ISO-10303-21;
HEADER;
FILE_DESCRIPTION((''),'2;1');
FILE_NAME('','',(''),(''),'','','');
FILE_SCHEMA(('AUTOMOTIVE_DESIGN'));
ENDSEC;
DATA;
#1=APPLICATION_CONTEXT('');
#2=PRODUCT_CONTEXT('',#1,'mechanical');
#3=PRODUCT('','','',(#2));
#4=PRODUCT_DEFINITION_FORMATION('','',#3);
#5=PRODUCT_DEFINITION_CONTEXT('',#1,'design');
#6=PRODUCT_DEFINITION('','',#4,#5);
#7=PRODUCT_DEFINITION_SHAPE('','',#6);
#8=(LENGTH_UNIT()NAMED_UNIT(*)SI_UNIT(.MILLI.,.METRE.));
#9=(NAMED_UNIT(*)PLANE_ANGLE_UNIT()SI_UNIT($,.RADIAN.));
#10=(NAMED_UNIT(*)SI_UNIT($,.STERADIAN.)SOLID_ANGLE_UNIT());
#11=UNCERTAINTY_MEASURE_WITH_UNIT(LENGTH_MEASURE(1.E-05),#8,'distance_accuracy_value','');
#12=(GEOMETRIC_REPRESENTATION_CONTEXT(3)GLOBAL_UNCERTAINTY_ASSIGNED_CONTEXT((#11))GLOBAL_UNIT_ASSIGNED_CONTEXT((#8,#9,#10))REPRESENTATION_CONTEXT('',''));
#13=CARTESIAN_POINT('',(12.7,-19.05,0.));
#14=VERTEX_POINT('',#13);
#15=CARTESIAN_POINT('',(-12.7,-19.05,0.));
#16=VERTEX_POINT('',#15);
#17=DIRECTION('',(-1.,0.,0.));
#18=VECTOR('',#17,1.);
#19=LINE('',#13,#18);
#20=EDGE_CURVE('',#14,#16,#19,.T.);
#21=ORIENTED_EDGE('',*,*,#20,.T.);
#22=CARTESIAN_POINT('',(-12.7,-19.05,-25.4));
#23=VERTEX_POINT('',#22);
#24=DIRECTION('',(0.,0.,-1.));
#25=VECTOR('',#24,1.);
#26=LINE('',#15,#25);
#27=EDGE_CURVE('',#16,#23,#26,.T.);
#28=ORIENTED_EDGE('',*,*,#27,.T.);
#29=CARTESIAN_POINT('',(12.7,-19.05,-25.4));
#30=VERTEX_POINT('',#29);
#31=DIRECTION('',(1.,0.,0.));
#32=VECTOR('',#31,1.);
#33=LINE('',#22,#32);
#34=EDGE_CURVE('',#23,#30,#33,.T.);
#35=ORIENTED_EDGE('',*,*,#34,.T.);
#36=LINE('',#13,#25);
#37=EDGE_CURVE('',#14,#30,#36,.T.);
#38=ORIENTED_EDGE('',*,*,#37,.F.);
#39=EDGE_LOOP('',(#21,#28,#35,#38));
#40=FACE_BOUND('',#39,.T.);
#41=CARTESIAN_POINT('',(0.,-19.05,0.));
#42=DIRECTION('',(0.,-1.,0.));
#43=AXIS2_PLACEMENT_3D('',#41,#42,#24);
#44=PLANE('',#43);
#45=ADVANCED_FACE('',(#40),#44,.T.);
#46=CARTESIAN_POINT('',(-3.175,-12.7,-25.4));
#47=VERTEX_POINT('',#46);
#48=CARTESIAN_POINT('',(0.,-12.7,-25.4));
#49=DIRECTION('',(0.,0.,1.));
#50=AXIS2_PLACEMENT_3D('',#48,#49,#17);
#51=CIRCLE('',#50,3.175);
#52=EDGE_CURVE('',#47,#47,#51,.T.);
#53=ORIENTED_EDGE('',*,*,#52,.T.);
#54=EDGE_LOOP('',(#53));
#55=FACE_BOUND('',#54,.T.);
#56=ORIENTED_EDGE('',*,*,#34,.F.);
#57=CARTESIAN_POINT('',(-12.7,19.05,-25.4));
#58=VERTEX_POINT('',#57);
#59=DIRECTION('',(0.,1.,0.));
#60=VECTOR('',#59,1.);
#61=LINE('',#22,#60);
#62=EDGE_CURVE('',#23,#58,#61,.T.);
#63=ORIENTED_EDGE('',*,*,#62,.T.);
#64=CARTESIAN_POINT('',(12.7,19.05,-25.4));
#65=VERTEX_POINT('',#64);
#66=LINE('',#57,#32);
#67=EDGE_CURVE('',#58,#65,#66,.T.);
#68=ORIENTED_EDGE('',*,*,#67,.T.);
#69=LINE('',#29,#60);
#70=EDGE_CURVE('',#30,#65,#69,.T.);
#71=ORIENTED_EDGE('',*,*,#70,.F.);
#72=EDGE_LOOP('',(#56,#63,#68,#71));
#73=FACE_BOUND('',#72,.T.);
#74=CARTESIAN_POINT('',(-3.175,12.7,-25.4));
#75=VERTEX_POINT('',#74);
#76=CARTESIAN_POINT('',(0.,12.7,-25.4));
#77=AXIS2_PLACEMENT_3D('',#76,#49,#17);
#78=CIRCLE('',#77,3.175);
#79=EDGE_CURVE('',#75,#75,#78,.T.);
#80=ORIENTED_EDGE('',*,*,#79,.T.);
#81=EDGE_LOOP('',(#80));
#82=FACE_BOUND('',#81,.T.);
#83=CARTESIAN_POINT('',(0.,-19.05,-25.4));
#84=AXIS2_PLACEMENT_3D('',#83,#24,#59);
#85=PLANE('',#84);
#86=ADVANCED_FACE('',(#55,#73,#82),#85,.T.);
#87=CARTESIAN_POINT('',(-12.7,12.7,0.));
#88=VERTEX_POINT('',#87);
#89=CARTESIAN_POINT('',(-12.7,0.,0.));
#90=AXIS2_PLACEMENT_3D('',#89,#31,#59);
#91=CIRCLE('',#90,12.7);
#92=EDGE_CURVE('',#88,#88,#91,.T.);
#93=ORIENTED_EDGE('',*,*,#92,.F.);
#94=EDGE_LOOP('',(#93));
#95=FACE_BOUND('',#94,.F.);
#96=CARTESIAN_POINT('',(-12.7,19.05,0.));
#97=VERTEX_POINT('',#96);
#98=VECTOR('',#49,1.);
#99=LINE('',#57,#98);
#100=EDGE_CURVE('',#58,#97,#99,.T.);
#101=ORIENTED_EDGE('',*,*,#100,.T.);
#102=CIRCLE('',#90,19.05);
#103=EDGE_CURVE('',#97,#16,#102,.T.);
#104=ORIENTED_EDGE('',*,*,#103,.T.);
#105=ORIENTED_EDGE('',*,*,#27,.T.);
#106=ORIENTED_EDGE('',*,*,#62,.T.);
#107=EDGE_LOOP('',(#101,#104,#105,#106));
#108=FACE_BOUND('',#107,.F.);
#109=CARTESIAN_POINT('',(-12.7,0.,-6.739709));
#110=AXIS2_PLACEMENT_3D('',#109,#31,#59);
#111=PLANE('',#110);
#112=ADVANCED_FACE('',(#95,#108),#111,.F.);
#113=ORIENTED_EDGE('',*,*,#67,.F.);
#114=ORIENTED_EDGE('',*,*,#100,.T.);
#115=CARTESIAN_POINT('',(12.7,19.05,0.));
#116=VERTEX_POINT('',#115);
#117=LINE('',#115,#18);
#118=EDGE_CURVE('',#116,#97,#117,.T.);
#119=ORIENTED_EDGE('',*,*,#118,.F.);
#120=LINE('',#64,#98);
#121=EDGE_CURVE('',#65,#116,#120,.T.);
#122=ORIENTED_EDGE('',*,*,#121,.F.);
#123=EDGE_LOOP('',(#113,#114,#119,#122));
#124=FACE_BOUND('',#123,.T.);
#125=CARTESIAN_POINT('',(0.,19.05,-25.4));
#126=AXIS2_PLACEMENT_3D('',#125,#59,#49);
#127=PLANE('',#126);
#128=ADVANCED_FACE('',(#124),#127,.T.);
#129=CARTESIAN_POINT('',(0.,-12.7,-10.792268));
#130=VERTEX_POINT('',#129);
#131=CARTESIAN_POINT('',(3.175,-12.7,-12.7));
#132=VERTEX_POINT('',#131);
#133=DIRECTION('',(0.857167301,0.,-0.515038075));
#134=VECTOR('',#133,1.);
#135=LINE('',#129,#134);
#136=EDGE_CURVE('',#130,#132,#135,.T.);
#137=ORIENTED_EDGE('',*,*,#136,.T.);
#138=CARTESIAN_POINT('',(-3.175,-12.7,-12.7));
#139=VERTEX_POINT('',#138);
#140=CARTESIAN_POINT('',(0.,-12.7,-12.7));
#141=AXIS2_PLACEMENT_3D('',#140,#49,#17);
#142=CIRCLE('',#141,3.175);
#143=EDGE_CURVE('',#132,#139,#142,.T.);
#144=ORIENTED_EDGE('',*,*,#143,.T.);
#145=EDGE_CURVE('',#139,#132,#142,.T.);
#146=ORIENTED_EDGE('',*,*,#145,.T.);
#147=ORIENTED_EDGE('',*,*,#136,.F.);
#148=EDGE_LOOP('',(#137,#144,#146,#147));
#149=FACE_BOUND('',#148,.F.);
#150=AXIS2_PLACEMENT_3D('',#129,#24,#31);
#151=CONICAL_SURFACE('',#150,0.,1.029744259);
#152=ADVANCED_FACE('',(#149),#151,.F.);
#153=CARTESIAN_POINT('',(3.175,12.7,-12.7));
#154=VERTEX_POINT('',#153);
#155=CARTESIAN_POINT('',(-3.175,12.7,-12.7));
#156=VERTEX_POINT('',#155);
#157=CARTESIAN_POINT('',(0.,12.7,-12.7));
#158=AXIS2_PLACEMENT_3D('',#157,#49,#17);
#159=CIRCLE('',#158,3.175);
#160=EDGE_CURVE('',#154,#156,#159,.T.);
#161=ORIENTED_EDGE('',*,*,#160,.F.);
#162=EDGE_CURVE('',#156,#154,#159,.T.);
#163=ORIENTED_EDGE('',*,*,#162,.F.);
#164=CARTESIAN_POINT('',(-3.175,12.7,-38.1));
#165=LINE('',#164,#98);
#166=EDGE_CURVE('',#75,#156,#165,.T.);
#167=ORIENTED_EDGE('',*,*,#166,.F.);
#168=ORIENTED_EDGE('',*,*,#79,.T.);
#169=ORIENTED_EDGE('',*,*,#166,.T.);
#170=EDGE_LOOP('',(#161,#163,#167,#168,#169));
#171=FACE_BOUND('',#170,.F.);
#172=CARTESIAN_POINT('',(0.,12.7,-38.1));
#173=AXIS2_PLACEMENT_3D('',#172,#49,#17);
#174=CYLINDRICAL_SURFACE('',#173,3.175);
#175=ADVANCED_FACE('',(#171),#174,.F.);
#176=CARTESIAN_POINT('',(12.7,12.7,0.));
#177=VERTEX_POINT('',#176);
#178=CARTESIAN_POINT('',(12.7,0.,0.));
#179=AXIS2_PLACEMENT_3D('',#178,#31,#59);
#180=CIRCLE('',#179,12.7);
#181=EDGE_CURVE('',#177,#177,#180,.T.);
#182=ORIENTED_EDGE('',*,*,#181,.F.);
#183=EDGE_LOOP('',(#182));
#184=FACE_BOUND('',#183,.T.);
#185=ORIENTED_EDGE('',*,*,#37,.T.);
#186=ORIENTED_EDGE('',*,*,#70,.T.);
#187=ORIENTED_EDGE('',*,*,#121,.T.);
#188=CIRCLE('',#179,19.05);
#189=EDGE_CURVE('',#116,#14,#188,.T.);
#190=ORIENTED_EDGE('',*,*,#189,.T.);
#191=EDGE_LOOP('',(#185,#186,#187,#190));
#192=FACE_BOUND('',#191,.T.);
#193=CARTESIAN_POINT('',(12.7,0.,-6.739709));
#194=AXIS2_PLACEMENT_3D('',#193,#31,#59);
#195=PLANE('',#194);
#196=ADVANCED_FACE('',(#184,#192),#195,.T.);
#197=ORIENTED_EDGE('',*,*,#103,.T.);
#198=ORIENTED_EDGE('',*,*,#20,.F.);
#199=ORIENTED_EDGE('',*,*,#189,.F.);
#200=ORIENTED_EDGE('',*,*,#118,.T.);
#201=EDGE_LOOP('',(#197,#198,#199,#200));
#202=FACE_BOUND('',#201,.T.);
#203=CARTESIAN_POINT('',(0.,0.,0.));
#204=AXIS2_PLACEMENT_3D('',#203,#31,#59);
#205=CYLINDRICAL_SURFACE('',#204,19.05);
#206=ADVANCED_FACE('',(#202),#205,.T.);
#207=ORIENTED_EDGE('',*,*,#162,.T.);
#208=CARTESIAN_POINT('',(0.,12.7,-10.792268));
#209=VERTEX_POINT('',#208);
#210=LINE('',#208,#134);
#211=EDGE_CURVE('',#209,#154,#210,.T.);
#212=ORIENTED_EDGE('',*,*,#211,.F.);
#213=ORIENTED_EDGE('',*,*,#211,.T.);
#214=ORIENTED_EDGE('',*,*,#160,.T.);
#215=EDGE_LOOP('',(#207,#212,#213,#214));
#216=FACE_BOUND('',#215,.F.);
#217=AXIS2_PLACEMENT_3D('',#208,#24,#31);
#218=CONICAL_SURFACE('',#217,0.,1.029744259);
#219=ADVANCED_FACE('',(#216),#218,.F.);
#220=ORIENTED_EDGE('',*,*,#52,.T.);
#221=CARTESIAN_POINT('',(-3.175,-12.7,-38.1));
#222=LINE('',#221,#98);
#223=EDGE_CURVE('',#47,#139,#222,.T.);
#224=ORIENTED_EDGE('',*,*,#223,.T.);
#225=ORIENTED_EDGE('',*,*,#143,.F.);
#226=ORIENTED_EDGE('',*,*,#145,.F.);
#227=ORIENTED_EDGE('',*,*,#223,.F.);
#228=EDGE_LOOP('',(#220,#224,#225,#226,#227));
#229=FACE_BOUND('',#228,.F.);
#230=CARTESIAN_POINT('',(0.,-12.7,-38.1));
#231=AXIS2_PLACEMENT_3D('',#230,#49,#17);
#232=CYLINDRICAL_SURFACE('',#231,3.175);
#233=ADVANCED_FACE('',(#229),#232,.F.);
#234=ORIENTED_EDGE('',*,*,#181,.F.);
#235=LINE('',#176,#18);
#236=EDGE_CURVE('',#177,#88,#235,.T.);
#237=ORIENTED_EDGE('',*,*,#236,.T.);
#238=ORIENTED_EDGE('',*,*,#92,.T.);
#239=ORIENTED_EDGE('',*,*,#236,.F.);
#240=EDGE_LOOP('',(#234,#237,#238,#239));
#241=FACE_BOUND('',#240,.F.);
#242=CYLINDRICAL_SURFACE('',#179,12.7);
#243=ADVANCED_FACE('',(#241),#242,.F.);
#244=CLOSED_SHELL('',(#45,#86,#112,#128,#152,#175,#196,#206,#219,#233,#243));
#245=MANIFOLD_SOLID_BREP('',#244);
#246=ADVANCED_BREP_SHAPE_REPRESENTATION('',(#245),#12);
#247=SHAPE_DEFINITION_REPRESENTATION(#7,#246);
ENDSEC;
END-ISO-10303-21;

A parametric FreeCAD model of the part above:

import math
import FreeCAD as App
import Part
import Sketcher
Q = App.Units.Quantity

doc = App.newDocument("Part")
body = doc.addObject("PartDesign::Body", "Body")

# Sketch on YZ plane
sketch1 = doc.addObject("Sketcher::SketchObject", "Sketch")
body.addObject(sketch1)
sketch1.AttachmentSupport = (doc.YZ_Plane, [""])
sketch1.MapMode = "FlatFace"
sketch1.addGeometry([
    Part.LineSegment(App.Vector(-19, 0, 0), App.Vector(-19, -25, 0)),
    Part.LineSegment(App.Vector(-19, -25, 0), App.Vector(19, -25, 0)),
    Part.LineSegment(App.Vector(19, -25, 0), App.Vector(19, 0, 0)),
    Part.ArcOfCircle(Part.Circle(App.Vector(0, 0, 0), App.Vector(0, 0, 1), 19), math.radians(0), math.radians(180)),
], False)
sketch1.addConstraint([
    Sketcher.Constraint("Coincident", 0, 2, 1, 1),
    Sketcher.Constraint("Coincident", 1, 2, 2, 1),
    Sketcher.Constraint("Tangent", 2, 2, 3, 1),
    Sketcher.Constraint("Tangent", 3, 2, 0, 1),
    Sketcher.Constraint("Vertical", 0),
    Sketcher.Constraint("Horizontal", 1),
    Sketcher.Constraint("Vertical", 2),
    Sketcher.Constraint("Coincident", 3, 3, -1, 1),
    Sketcher.Constraint("DistanceY", 0, 2, 0, 1, Q("1 in")),
    Sketcher.Constraint("Radius", 3, Q("0.75 in")),
])
pad1 = doc.addObject("PartDesign::Pad", "Pad")
body.addObject(pad1)
pad1.Profile = sketch1
pad1.Length = Q("1 in")
pad1.Midplane = True

# Sketch on YZ plane
sketch2 = doc.addObject("Sketcher::SketchObject", "Sketch001")
body.addObject(sketch2)
sketch2.AttachmentSupport = (doc.YZ_Plane, [""])
sketch2.MapMode = "FlatFace"
sketch2.AttachmentOffset = App.Placement(App.Vector(0, 0, 0.5 * 25.4), App.Rotation())
sketch2.addGeometry(Part.Circle(App.Vector(0, 0, 0), App.Vector(0, 0, 1), 13), False)
sketch2.addConstraint([
    Sketcher.Constraint("Coincident", 0, 3, -1, 1),
    Sketcher.Constraint("Diameter", 0, Q("1 in")),
])
pocket1 = doc.addObject("PartDesign::Pocket", "Pocket")
body.addObject(pocket1)
pocket1.Profile = sketch2
pocket1.Type = "ThroughAll"

# Sketch on XY plane
sketch3 = doc.addObject("Sketcher::SketchObject", "Sketch002")
body.addObject(sketch3)
sketch3.AttachmentSupport = (doc.XY_Plane, [""])
sketch3.MapMode = "FlatFace"
sketch3.AttachmentOffset = App.Placement(App.Vector(0, 0, -1 * 25.4), App.Rotation())
sketch3.addGeometry([
    Part.Circle(App.Vector(0, -12.7, 0), App.Vector(0, 0, 1), 3.2),
    Part.Circle(App.Vector(0, 12.7, 0), App.Vector(0, 0, 1), 3.2),
], False)
sketch3.addConstraint([
    Sketcher.Constraint("Equal", 0, 1),
    Sketcher.Constraint("Symmetric", 0, 3, 1, 3, -1, 1),
    Sketcher.Constraint("PointOnObject", 0, 3, -2),
    Sketcher.Constraint("Diameter", 0, Q("0.25 in")),
    Sketcher.Constraint("DistanceY", 0, 3, 1, 3, Q("1 in")),
])
doc.recompute()
hole = doc.addObject("PartDesign::Hole", "Hole")
body.addObject(hole)
hole.Profile = sketch3
hole.ThreadType = "None"
hole.Diameter = Q("0.25 in")
hole.DepthType = "Dimension"
hole.Depth = Q("0.5 in")
hole.DrillPoint = "Angled"
hole.DrillPointAngle = 118
hole.Reversed = True

doc.recompute()
